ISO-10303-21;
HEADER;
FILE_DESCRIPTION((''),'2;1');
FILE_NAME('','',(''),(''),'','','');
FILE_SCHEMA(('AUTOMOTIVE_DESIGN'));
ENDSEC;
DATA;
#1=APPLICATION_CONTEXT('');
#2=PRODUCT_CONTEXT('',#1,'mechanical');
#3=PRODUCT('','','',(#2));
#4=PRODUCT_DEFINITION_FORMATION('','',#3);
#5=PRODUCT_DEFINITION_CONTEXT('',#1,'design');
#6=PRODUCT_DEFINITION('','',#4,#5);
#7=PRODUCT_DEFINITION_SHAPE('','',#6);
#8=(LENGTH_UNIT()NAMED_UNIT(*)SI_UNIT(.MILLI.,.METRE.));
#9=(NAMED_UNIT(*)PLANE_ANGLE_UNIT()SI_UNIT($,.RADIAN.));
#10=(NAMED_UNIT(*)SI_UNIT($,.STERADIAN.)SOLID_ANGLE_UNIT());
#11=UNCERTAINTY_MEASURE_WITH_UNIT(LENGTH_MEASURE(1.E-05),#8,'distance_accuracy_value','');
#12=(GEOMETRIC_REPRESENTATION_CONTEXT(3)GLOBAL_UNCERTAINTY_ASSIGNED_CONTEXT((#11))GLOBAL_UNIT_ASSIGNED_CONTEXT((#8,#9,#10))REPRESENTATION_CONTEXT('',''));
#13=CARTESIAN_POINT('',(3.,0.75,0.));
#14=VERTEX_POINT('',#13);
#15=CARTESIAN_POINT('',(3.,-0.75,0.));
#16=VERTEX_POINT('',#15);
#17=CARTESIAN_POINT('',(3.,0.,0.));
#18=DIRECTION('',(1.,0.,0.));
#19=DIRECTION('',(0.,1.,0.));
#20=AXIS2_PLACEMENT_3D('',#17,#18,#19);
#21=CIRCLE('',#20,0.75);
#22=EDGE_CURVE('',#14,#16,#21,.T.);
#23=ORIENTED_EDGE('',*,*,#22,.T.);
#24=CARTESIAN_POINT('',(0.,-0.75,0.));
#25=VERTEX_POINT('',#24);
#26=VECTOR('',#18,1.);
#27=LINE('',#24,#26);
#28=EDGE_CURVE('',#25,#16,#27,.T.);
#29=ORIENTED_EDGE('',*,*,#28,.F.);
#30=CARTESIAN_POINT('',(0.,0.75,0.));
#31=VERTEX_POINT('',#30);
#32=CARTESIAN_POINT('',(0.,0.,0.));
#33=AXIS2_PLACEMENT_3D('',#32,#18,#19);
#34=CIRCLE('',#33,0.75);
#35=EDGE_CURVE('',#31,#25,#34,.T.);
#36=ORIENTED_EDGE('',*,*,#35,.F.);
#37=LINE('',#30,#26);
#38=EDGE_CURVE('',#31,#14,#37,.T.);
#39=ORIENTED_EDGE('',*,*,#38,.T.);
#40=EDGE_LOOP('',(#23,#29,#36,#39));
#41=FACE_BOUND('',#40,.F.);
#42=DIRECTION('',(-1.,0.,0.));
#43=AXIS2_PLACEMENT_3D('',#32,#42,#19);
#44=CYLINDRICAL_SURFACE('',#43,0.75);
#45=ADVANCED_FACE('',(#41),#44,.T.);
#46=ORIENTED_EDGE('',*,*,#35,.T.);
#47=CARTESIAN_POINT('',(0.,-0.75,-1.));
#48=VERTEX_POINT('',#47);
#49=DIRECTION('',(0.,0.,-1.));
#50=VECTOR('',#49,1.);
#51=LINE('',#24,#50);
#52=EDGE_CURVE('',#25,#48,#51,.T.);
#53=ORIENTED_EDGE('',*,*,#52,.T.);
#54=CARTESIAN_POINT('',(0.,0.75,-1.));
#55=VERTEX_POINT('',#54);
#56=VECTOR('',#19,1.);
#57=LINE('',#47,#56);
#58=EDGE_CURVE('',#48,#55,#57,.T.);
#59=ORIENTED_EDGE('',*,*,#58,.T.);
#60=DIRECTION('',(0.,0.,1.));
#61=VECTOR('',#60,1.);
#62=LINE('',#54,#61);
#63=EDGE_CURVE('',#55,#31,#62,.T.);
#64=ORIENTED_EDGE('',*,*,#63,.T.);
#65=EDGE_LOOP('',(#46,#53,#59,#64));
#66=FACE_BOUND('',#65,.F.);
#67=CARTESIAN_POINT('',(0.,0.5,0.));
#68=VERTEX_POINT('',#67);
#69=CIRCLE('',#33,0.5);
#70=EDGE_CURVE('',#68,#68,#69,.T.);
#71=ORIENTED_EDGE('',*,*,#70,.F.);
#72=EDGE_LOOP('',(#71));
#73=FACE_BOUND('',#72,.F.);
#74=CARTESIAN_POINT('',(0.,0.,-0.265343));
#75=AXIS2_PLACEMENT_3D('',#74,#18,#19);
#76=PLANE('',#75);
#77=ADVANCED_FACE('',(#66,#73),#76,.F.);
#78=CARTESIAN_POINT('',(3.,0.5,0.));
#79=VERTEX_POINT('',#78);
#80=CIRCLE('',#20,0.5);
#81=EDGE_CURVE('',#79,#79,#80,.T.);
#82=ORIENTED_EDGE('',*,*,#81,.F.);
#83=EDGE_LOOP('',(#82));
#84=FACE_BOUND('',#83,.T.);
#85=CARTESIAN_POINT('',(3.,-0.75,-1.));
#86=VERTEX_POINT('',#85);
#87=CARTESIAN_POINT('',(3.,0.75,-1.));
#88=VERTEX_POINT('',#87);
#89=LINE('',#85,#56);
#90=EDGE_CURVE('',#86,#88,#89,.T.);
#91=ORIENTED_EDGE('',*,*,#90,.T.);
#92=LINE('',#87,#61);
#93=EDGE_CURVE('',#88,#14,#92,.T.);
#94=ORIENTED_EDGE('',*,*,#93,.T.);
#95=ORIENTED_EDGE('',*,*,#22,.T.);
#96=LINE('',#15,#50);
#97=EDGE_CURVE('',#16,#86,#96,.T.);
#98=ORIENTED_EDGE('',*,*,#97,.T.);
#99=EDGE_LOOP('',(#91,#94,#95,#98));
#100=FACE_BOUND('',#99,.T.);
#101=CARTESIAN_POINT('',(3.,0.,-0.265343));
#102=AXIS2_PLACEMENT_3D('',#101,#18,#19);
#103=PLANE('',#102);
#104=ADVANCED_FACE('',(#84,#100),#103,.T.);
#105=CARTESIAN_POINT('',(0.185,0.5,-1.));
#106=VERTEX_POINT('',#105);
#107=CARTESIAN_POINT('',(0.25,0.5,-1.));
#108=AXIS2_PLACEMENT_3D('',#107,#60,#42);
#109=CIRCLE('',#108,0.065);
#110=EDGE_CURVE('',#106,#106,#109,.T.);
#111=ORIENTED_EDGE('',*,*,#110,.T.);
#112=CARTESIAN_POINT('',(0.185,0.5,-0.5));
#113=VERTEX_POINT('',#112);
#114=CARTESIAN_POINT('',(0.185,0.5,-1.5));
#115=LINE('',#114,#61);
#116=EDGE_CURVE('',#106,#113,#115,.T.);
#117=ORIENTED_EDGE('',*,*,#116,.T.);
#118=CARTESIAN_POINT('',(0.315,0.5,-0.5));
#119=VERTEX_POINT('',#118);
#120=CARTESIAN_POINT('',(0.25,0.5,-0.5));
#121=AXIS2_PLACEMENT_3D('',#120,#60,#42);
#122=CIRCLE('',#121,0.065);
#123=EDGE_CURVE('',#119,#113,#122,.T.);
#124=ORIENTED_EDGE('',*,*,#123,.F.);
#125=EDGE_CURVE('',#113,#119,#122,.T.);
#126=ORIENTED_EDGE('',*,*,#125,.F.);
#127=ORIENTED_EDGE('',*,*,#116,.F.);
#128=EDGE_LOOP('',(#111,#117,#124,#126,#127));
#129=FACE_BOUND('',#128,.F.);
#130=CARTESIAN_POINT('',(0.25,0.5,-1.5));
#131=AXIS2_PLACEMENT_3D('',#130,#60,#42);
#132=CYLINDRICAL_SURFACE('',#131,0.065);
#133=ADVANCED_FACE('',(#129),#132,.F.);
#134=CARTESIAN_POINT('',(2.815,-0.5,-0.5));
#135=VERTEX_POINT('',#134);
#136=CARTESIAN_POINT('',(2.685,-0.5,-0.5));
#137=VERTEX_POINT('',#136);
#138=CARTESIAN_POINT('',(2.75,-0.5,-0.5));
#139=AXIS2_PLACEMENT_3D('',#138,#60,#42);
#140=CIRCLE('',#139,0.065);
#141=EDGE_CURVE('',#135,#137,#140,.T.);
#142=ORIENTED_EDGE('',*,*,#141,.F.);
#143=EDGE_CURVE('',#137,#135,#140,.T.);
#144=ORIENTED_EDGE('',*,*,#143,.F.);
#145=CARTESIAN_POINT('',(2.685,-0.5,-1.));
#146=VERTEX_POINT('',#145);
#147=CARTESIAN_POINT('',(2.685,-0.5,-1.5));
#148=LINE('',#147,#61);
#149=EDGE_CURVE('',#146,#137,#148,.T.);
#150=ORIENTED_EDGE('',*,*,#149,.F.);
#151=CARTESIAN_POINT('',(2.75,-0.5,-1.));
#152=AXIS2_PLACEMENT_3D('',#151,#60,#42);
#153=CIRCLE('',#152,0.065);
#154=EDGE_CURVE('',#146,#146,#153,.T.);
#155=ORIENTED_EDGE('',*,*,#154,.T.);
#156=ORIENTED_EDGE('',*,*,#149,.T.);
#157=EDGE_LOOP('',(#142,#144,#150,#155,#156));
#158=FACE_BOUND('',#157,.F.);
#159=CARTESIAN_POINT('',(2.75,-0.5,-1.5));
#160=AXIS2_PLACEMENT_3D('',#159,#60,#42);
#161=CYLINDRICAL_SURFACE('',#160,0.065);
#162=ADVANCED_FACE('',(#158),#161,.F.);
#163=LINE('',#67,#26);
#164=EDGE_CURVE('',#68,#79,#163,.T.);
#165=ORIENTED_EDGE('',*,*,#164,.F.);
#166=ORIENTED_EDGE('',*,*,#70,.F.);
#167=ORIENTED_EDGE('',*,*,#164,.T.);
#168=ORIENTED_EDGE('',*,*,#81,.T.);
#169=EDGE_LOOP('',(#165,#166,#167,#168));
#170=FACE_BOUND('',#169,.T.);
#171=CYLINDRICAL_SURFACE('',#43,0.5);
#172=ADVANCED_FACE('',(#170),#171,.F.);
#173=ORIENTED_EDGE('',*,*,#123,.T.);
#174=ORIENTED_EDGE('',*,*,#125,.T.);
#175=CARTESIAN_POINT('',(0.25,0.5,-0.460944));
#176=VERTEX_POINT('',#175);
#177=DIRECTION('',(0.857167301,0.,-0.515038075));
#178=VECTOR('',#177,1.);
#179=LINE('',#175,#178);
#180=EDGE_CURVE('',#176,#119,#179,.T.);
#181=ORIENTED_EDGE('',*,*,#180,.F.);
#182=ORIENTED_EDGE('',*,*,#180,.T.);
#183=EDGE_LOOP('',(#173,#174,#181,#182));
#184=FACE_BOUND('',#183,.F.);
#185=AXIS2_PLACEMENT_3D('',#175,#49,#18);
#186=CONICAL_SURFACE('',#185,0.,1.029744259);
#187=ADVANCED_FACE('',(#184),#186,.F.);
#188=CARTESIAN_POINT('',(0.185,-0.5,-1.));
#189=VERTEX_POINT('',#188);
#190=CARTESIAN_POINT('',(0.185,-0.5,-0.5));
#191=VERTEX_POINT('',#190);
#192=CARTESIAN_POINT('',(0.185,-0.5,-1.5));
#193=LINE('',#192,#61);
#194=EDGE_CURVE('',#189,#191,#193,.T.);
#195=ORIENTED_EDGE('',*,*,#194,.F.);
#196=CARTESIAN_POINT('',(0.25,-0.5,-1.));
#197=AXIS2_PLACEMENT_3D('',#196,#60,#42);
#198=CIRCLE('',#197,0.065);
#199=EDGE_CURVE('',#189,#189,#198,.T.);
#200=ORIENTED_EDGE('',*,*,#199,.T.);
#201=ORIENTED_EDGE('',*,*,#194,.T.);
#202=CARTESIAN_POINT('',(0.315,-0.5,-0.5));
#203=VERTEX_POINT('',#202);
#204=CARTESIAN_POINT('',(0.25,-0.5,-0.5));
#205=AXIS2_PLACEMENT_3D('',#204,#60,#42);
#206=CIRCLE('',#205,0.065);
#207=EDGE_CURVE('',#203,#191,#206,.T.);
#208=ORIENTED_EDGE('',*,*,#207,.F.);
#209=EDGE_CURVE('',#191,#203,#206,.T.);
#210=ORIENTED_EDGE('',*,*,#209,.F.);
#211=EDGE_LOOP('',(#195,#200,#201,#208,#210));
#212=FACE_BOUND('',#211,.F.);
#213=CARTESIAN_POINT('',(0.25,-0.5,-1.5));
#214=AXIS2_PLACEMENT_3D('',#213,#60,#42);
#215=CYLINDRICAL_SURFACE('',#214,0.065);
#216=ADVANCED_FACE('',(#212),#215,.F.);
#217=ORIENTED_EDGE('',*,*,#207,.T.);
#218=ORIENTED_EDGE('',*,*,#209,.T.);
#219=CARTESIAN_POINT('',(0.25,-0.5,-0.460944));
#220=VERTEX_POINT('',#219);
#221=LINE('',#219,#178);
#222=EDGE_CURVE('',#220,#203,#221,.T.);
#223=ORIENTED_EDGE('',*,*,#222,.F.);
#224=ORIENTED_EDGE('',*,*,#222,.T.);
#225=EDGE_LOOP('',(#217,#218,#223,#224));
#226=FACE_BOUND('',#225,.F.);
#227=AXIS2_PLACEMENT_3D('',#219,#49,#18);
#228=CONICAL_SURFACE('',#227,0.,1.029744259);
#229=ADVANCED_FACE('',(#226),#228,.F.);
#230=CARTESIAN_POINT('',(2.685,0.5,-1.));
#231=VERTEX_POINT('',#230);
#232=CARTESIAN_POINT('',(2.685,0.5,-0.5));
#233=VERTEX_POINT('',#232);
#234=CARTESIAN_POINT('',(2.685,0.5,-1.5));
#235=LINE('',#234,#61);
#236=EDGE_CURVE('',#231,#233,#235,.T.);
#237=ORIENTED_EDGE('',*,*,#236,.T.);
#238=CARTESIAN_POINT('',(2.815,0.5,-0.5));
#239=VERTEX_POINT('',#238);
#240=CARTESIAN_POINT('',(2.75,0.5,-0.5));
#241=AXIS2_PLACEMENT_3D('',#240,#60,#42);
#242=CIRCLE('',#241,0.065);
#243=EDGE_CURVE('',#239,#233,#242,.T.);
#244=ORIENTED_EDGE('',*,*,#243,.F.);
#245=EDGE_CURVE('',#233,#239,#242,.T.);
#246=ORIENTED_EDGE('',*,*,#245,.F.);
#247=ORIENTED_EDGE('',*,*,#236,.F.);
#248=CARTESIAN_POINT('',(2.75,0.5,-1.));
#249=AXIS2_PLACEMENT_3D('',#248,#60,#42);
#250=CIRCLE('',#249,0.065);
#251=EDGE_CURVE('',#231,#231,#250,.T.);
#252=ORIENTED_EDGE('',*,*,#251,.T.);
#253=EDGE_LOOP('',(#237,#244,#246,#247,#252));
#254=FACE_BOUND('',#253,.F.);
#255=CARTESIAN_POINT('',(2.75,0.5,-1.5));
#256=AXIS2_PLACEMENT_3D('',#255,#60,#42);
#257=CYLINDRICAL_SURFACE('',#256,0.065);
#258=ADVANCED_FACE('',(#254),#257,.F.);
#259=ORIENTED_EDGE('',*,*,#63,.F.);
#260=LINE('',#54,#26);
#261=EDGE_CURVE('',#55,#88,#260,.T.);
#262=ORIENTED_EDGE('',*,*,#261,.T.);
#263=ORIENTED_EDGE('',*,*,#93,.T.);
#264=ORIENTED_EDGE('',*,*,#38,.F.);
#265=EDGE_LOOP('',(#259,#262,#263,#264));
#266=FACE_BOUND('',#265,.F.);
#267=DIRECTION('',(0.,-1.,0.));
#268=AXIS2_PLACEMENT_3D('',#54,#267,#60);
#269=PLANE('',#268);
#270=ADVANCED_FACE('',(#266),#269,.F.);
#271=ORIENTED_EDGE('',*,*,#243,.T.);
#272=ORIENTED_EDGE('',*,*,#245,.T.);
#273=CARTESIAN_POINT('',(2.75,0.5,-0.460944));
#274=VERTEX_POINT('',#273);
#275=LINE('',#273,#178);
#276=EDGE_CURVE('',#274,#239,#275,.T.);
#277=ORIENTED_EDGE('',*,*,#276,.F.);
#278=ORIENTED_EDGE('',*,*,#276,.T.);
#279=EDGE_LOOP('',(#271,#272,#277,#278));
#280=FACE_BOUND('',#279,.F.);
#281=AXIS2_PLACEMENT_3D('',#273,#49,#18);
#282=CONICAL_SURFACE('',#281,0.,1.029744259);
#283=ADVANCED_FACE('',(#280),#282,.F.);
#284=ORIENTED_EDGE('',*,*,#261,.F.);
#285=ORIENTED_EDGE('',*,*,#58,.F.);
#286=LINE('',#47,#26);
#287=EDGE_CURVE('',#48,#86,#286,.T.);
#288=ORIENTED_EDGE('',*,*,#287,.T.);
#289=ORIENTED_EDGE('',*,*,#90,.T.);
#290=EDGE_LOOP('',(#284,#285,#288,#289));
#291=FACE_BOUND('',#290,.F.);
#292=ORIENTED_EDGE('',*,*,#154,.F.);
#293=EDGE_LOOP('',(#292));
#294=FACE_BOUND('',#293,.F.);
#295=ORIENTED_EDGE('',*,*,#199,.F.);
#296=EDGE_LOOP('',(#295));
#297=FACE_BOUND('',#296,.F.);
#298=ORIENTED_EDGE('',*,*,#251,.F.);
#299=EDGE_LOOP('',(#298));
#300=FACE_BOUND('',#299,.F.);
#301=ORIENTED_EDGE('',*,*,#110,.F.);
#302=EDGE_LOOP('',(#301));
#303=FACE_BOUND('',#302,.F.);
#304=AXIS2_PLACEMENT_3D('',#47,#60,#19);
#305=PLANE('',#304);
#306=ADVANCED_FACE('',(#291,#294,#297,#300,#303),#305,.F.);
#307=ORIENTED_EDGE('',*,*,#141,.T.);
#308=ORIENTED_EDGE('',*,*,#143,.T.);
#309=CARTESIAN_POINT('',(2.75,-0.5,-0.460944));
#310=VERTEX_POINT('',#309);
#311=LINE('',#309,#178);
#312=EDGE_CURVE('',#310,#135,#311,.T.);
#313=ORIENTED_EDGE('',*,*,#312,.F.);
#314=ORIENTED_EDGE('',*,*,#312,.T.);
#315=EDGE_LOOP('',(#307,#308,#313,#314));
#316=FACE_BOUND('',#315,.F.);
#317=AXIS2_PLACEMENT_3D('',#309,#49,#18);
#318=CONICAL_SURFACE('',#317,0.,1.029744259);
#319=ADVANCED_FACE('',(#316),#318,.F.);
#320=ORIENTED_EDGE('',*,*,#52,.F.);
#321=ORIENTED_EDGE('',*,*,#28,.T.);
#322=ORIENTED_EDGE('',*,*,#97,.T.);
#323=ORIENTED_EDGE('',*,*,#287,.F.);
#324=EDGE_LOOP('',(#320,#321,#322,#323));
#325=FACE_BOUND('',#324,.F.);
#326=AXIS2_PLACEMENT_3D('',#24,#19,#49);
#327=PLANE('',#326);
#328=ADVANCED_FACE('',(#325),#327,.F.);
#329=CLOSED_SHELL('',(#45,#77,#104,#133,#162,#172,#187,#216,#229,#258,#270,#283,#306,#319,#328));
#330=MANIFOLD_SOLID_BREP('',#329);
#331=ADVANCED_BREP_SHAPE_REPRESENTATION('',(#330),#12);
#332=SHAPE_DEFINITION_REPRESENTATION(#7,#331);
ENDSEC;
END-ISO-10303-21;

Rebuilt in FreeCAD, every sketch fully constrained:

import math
import FreeCAD as App
import Part
import Sketcher

V = App.Vector

doc = App.newDocument("Part")
body = doc.addObject("PartDesign::Body", "Body")

# Sketch on YZ plane
sketch1 = doc.addObject("Sketcher::SketchObject", "Sketch")
body.addObject(sketch1)
sketch1.AttachmentSupport = (doc.YZ_Plane, [""])
sketch1.MapMode = "FlatFace"
sketch1.addGeometry([
    Part.LineSegment(V(0.8, -1, 0), V(0.8, 0, 0)),  # 0
    Part.ArcOfCircle(Part.Circle(V(0, 0, 0), V(0, 0, 1), 0.8), math.radians(0), math.radians(180)),  # 1
    Part.LineSegment(V(-0.8, 0, 0), V(-0.8, -1, 0)),  # 2
    Part.LineSegment(V(-0.8, -1, 0), V(0.8, -1, 0)),  # 3
    Part.Circle(V(0, 0, 0), V(0, 0, 1), 0.5),  # 4
], False)
sketch1.addConstraint([
    Sketcher.Constraint("Tangent", 0, 2, 1, 1),
    Sketcher.Constraint("Tangent", 1, 2, 2, 1),
    Sketcher.Constraint("Coincident", 2, 2, 3, 1),
    Sketcher.Constraint("Coincident", 3, 2, 0, 1),
    Sketcher.Constraint("Vertical", 0),
    Sketcher.Constraint("Vertical", 2),
    Sketcher.Constraint("Horizontal", 3),
    Sketcher.Constraint("Coincident", 1, 3, -1, 1),
    Sketcher.Constraint("Coincident", 4, 3, -1, 1),
    Sketcher.Constraint("Diameter", 4, 1.0),
    Sketcher.Constraint("DistanceY", 0, 1, 0, 2, 1.0),
    Sketcher.Constraint("Radius", 1, 0.75),
])
pad1 = doc.addObject("PartDesign::Pad", "Pad")
body.addObject(pad1)
pad1.Profile = sketch1
pad1.Length = 3

# Sketch on XY plane
sketch2 = doc.addObject("Sketcher::SketchObject", "Sketch001")
body.addObject(sketch2)
sketch2.AttachmentSupport = (doc.XY_Plane, [""])
sketch2.MapMode = "FlatFace"
sketch2.AttachmentOffset = App.Placement(V(0, 0, -1), App.Rotation())
sketch2.addGeometry(Part.Circle(V(0.25, -0.5, 0), V(0, 0, 1), 0.07), False)
sketch2.addConstraint([
    Sketcher.Constraint("Diameter", 0, 0.13),
    Sketcher.Constraint("DistanceY", 0, 3, -1, 1, 0.5),
    Sketcher.Constraint("DistanceX", -1, 1, 0, 3, 0.25),
])
doc.recompute()
hole = doc.addObject("PartDesign::Hole", "Hole")
body.addObject(hole)
hole.Profile = sketch2
hole.ThreadType = "None"
hole.Diameter = 0.13
hole.DepthType = "Dimension"
hole.Depth = 0.5
hole.DrillPoint = "Angled"
hole.DrillPointAngle = 118
hole.Reversed = True

# Sketch on XY plane
sketch3 = doc.addObject("Sketcher::SketchObject", "Sketch002")
body.addObject(sketch3)
sketch3.AttachmentSupport = (doc.XY_Plane, [""])
sketch3.MapMode = "FlatFace"
sketch3.AttachmentOffset = App.Placement(V(0, 0, -1), App.Rotation())
sketch3.addGeometry([
    Part.Circle(V(2.75, -0.5, 0), V(0, 0, 1), 0.07),
    Part.Circle(V(2.75, 0.5, 0), V(0, 0, 1), 0.07),
    Part.Circle(V(0.25, 0.5, 0), V(0, 0, 1), 0.07),
], False)
sketch3.addConstraint([
    Sketcher.Constraint("Equal", 0, 1),
    Sketcher.Constraint("Equal", 1, 2),
    Sketcher.Constraint("Symmetric", 0, 3, 1, 3, -1),
    Sketcher.Constraint("Horizontal", 1, 3, 2, 3),
    Sketcher.Constraint("Diameter", 0, 0.13),
    Sketcher.Constraint("DistanceY", 0, 3, 1, 3, 1.0),
    Sketcher.Constraint("DistanceX", 2, 3, 1, 3, 2.5),
    Sketcher.Constraint("DistanceX", -1, 1, 0, 3, 2.75),
])
doc.recompute()
hole2 = doc.addObject("PartDesign::Hole", "Hole001")
body.addObject(hole2)
hole2.Profile = sketch3
hole2.ThreadType = "None"
hole2.Diameter = 0.13
hole2.DepthType = "Dimension"
hole2.Depth = 0.5
hole2.DrillPoint = "Angled"
hole2.DrillPointAngle = 118
hole2.Reversed = True

doc.recompute()
